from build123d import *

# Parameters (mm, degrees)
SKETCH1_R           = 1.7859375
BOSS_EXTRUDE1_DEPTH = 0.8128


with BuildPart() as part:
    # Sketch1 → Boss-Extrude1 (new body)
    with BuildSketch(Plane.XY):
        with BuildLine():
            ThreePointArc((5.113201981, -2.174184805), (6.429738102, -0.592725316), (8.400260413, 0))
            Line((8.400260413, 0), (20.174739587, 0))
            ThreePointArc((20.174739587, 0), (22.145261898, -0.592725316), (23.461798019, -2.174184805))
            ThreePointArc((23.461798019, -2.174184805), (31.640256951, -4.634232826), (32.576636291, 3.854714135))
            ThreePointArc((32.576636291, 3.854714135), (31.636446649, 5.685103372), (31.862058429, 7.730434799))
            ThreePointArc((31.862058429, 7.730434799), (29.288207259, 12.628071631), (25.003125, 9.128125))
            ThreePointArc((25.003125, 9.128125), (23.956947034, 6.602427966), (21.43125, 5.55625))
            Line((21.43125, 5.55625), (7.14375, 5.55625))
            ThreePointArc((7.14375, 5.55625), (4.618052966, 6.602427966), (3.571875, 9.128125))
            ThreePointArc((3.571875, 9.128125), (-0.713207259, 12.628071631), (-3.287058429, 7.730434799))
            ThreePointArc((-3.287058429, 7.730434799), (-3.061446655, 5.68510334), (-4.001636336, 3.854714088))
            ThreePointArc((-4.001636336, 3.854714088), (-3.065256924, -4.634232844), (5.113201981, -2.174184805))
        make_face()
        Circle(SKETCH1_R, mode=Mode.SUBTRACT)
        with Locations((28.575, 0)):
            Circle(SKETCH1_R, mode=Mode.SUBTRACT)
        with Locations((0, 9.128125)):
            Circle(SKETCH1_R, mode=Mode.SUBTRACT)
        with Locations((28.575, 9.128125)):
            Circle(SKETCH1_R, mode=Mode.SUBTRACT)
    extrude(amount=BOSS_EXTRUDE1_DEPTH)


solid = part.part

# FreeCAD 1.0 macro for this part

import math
import FreeCAD as App
import Part
import Sketcher
from FreeCAD import Vector
Q = App.Units.Quantity

doc = App.newDocument("Part")
body = doc.addObject("PartDesign::Body", "Body")

# Sketch on XY plane
sketch1 = doc.addObject("Sketcher::SketchObject", "Sketch")
body.addObject(sketch1)
sketch1.AttachmentSupport = (doc.XY_Plane, [""])
sketch1.MapMode = "FlatFace"
sketch1.addGeometry(Part.ArcOfCircle(Part.Circle(Vector(8.4, -3.6, 0), Vector(0, 0, 1), 3.6), math.radians(90), math.radians(157)), False)
sketch1.addGeometry(Part.LineSegment(Vector(8.4, 0, 0), Vector(20.2, 0, 0)), False)
sketch1.addGeometry(Part.ArcOfCircle(Part.Circle(Vector(20.2, -3.6, 0), Vector(0, 0, 1), 3.6), math.radians(23), math.radians(90)), False)
sketch1.addGeometry(Part.ArcOfCircle(Part.Circle(Vector(28.6, 0, 0), Vector(0, 0, 1), 5.6), math.radians(-157), math.radians(44)), False)
sketch1.addGeometry(Part.ArcOfCircle(Part.Circle(Vector(35.1, 6.3, 0), Vector(0, 0, 1), 3.6), math.radians(157), math.radians(224)), False)
sketch1.addGeometry(Part.ArcOfCircle(Part.Circle(Vector(28.6, 9.1, 0), Vector(0, 0, 1), 3.6), math.radians(-23), math.radians(180)), False)
sketch1.addGeometry(Part.ArcOfCircle(Part.Circle(Vector(21.4, 9.1, 0), Vector(0, 0, 1), 3.6), math.radians(-90), math.radians(0)), False)
sketch1.addGeometry(Part.LineSegment(Vector(21.4, 5.6, 0), Vector(7.1, 5.6, 0)), False)
sketch1.addGeometry(Part.ArcOfCircle(Part.Circle(Vector(7.1, 9.1, 0), Vector(0, 0, 1), 3.6), math.radians(180), math.radians(270)), False)
sketch1.addGeometry(Part.ArcOfCircle(Part.Circle(Vector(0, 9.1, 0), Vector(0, 0, 1), 3.6), math.radians(0), math.radians(203)), False)
sketch1.addGeometry(Part.ArcOfCircle(Part.Circle(Vector(-6.6, 6.3, 0), Vector(0, 0, 1), 3.6), math.radians(-44), math.radians(23)), False)
sketch1.addGeometry(Part.ArcOfCircle(Part.Circle(Vector(0, 0, 0), Vector(0, 0, 1), 5.6), math.radians(136), math.radians(337)), False)
sketch1.addGeometry(Part.Circle(Vector(0, 0, 0), Vector(0, 0, 1), 1.8), False)
sketch1.addGeometry(Part.Circle(Vector(28.6, 0, 0), Vector(0, 0, 1), 1.8), False)
sketch1.addGeometry(Part.Circle(Vector(0, 9.1, 0), Vector(0, 0, 1), 1.8), False)
sketch1.addGeometry(Part.Circle(Vector(28.6, 9.1, 0), Vector(0, 0, 1), 1.8), False)
sketch1.addConstraint(Sketcher.Constraint("Tangent", 0, 1, 1, 1))
sketch1.addConstraint(Sketcher.Constraint("Tangent", 1, 2, 2, 2))
sketch1.addConstraint(Sketcher.Constraint("Tangent", 2, 1, 3, 1))
sketch1.addConstraint(Sketcher.Constraint("Tangent", 3, 2, 4, 2))
sketch1.addConstraint(Sketcher.Constraint("Tangent", 4, 1, 5, 1))
sketch1.addConstraint(Sketcher.Constraint("Tangent", 5, 2, 6, 2))
sketch1.addConstraint(Sketcher.Constraint("Tangent", 6, 1, 7, 1))
sketch1.addConstraint(Sketcher.Constraint("Tangent", 7, 2, 8, 2))
sketch1.addConstraint(Sketcher.Constraint("Tangent", 8, 1, 9, 1))
sketch1.addConstraint(Sketcher.Constraint("Tangent", 9, 2, 10, 2))
sketch1.addConstraint(Sketcher.Constraint("Tangent", 10, 1, 11, 1))
sketch1.addConstraint(Sketcher.Constraint("Tangent", 11, 2, 0, 2))
sketch1.addConstraint(Sketcher.Constraint("Horizontal", 1))
sketch1.addConstraint(Sketcher.Constraint("Horizontal", 7))
sketch1.addConstraint(Sketcher.Constraint("Coincident", 11, 3, -1, 1))
sketch1.addConstraint(Sketcher.Constraint("Coincident", 12, 3, -1, 1))
sketch1.addConstraint(Sketcher.Constraint("Coincident", 13, 3, 3, 3))
sketch1.addConstraint(Sketcher.Constraint("Coincident", 14, 3, 9, 3))
sketch1.addConstraint(Sketcher.Constraint("Coincident", 15, 3, 5, 3))
sketch1.addConstraint(Sketcher.Constraint("Equal", 0, 2))
sketch1.addConstraint(Sketcher.Constraint("Equal", 2, 4))
sketch1.addConstraint(Sketcher.Constraint("Equal", 4, 5))
sketch1.addConstraint(Sketcher.Constraint("Equal", 5, 6))
sketch1.addConstraint(Sketcher.Constraint("Equal", 6, 8))
sketch1.addConstraint(Sketcher.Constraint("Equal", 8, 9))
sketch1.addConstraint(Sketcher.Constraint("Equal", 9, 10))
sketch1.addConstraint(Sketcher.Constraint("Equal", 3, 11))
sketch1.addConstraint(Sketcher.Constraint("Equal", 12, 13))
sketch1.addConstraint(Sketcher.Constraint("Equal", 13, 14))
sketch1.addConstraint(Sketcher.Constraint("Equal", 14, 15))
sketch1.addConstraint(Sketcher.Constraint("PointOnObject", 3, 3, -1))
sketch1.addConstraint(Sketcher.Constraint("PointOnObject", 9, 3, -2))
sketch1.addConstraint(Sketcher.Constraint("PointOnObject", 0, 1, -1))
sketch1.addConstraint(Sketcher.Constraint("Horizontal", 5, 3, 6, 3))
sketch1.addConstraint(Sketcher.Constraint("Horizontal", 8, 3, 9, 3))
sketch1.addConstraint(Sketcher.Constraint("Horizontal", 4, 3, 10, 3))
sketch1.addConstraint(Sketcher.Constraint("Diameter", 12, Q("0.140625 in")))
sketch1.addConstraint(Sketcher.Constraint("Radius", 0, Q("0.140625 in")))
sketch1.addConstraint(Sketcher.Constraint("Radius", 3, Q("0.21875 in")))
sketch1.addConstraint(Sketcher.Constraint("DistanceY", 2, 3, 5, 3, Q("0.5 in")))
sketch1.addConstraint(Sketcher.Constraint("DistanceX", 7, 2, 7, 1, Q("0.5625 in")))
pad1 = doc.addObject("PartDesign::Pad", "Pad")
body.addObject(pad1)
pad1.Profile = sketch1
pad1.Length = Q("0.032 in")

doc.recompute()
